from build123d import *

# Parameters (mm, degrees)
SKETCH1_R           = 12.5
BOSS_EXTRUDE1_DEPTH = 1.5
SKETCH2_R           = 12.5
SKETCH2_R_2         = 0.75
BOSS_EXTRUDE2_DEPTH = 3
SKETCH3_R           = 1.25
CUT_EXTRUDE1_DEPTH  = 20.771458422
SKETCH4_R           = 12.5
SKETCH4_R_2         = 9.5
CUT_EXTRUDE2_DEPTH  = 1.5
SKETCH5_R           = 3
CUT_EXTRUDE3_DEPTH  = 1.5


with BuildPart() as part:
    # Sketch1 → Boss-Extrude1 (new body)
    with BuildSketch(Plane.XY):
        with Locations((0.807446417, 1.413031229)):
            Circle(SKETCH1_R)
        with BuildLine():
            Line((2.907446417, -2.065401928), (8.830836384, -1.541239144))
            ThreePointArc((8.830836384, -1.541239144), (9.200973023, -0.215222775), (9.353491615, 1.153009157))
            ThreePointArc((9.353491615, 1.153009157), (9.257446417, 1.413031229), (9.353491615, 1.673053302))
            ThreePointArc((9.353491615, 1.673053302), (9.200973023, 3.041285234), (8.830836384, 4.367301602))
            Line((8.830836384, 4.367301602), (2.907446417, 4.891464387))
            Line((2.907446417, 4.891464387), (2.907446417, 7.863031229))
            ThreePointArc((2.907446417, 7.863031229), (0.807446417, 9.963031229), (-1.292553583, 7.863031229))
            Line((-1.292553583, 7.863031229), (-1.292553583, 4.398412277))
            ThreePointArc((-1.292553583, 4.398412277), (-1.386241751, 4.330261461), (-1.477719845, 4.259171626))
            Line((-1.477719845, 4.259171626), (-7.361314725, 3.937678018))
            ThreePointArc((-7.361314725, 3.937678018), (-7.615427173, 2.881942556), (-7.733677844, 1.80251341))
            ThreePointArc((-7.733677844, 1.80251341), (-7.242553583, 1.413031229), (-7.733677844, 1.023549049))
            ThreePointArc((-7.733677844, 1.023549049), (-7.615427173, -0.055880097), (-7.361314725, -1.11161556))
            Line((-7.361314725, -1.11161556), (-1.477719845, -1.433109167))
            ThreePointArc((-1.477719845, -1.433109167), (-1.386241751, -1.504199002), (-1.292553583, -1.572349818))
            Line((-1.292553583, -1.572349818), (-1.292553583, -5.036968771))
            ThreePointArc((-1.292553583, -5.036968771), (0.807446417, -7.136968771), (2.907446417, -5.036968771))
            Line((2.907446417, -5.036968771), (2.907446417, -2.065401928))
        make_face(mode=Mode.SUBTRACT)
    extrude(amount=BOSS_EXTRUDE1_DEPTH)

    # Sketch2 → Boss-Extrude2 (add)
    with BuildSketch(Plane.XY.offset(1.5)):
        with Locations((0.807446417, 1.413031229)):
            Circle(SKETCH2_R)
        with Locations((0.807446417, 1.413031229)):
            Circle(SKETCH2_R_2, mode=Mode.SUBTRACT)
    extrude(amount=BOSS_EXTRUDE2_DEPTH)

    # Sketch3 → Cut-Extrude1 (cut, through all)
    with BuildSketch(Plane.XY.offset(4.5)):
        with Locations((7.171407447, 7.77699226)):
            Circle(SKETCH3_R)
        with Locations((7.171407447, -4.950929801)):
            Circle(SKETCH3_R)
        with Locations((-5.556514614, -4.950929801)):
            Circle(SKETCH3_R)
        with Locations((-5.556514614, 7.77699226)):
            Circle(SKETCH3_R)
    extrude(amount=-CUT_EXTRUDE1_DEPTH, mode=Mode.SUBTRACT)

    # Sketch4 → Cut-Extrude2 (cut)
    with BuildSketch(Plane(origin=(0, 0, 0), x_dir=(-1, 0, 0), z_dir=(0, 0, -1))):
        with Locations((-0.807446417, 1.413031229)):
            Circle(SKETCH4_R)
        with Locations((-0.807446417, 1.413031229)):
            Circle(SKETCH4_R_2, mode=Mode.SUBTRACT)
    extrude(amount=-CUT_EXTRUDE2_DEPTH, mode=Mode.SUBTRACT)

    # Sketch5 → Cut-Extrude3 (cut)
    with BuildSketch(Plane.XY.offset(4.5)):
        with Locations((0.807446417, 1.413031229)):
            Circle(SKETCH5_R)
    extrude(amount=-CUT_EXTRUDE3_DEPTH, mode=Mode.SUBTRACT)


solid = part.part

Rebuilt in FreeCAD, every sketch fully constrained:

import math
import FreeCAD as App
import Part
import Sketcher

V = App.Vector
Q = App.Units.Quantity

doc = App.newDocument("Part")
params = doc.addObject("Spreadsheet::Sheet", "Params")
for row, (alias, value) in enumerate([
    ("sketch1_diameter", "25 mm"),
    ("sketch1_radius", "2.1 mm"),
    ("sketch1_radius2", "0.4 mm"),
    ("sketch1_radius3", "3.65 mm"),
    ("sketch1_radius4", "8.55 mm"),
    ("pad1_length", "1.5 mm"),
    ("sketch2_diameter", "25 mm"),
    ("sketch2_diameter2", "1.5 mm"),
    ("pad2_length", "3 mm"),
    ("sketch3_diameter", "2.5 mm"),
    ("sketch4_diameter", "25 mm"),
    ("sketch4_diameter2", "19 mm"),
    ("pocket2_length", "1.5 mm"),
    ("sketch5_diameter", "6 mm"),
    ("pocket3_length", "1.5 mm"),
], start=1):
    params.set(f"A{row}", alias)
    params.set(f"B{row}", "=" + value)
    params.setAlias(f"B{row}", alias)

body = doc.addObject("PartDesign::Body", "Body")

# Sketch on XY plane
sketch1 = body.newObject("Sketcher::SketchObject", "Sketch")
sketch1.AttachmentSupport = (doc.getObject("XY_Plane"), [""])
sketch1.MapMode = "FlatFace"
sketch1.addGeometry([
    Part.Circle(V(0.807446, 1.413031, 0), V(0, 0, 1), 12.5),  # 0
    Part.LineSegment(V(8.830836, -1.541239, 0), V(2.907446, -2.065402, 0)),  # 1
    Part.LineSegment(V(2.907446, -2.065402, 0), V(2.907446, -5.036969, 0)),  # 2
    Part.ArcOfCircle(Part.Circle(V(0.807446, -5.036969, 0), V(0, 0, 1), 2.1), math.radians(180), math.radians(360)),  # 3
    Part.LineSegment(V(-1.292554, -5.036969, 0), V(-1.292554, -1.57235, 0)),  # 4
    Part.ArcOfCircle(Part.Circle(V(0.807446, 1.413031, 0), V(0, 0, 1), 3.65), math.radians(-128.760983), math.radians(-125.123618)),  # 5
    Part.LineSegment(V(-1.47772, -1.433109, 0), V(-7.361315, -1.111616, 0)),  # 6
    Part.ArcOfCircle(Part.Circle(V(0.807446, 1.413031, 0), V(0, 0, 1), 8.55), math.radians(-177.389075), math.radians(-162.825652)),  # 7
    Part.ArcOfCircle(Part.Circle(V(-7.642554, 1.413031, 0), V(0, 0, 1), 0.4), math.radians(-103.16821), math.radians(103.16821)),  # 8
    Part.ArcOfCircle(Part.Circle(V(0.807446, 1.413031, 0), V(0, 0, 1), 8.55), math.radians(162.825652), math.radians(177.389075)),  # 9
    Part.LineSegment(V(-7.361315, 3.937678, 0), V(-1.47772, 4.259172, 0)),  # 10
    Part.ArcOfCircle(Part.Circle(V(0.807446, 1.413032, 0), V(0, 0, 1), 3.65), math.radians(125.123618), math.radians(128.760983)),  # 11
    Part.LineSegment(V(-1.292554, 4.398412, 0), V(-1.292554, 7.863031, 0)),  # 12
    Part.ArcOfCircle(Part.Circle(V(0.807446, 7.863031, 0), V(0, 0, 1), 2.1), math.radians(0), math.radians(180)),  # 13
    Part.LineSegment(V(2.907446, 7.863031, 0), V(2.907446, 4.891464, 0)),  # 14
    Part.LineSegment(V(2.907446, 4.891464, 0), V(8.830836, 4.367302, 0)),  # 15
    Part.ArcOfCircle(Part.Circle(V(0.807446, 1.413031, 0), V(0, 0, 1), 8.55), math.radians(1.742744), math.radians(20.214073)),  # 16
    Part.ArcOfCircle(Part.Circle(V(9.657446, 1.413031, 0), V(0, 0, 1), 0.4), math.radians(139.454238), math.radians(220.545763)),  # 17
    Part.ArcOfCircle(Part.Circle(V(0.807446, 1.413031, 0), V(0, 0, 1), 8.55), math.radians(-20.214073), math.radians(-1.742744)),  # 18
], False)
sketch1.addConstraint([
    Sketcher.Constraint("Coincident", 1, 2, 2, 1),
    Sketcher.Constraint("Tangent", 2, 2, 3, 2),
    Sketcher.Constraint("Tangent", 3, 1, 4, 1),
    Sketcher.Constraint("Coincident", 4, 2, 5, 2),
    Sketcher.Constraint("Coincident", 5, 1, 6, 1),
    Sketcher.Constraint("Coincident", 6, 2, 7, 2),
    Sketcher.Constraint("Coincident", 7, 1, 8, 1),
    Sketcher.Constraint("Coincident", 8, 2, 9, 2),
    Sketcher.Constraint("Coincident", 9, 1, 10, 1),
    Sketcher.Constraint("Coincident", 10, 2, 11, 2),
    Sketcher.Constraint("Coincident", 11, 1, 12, 1),
    Sketcher.Constraint("Tangent", 12, 2, 13, 2),
    Sketcher.Constraint("Tangent", 13, 1, 14, 1),
    Sketcher.Constraint("Coincident", 14, 2, 15, 1),
    Sketcher.Constraint("Coincident", 15, 2, 16, 2),
    Sketcher.Constraint("Coincident", 16, 1, 17, 1),
    Sketcher.Constraint("Coincident", 17, 2, 18, 2),
    Sketcher.Constraint("Coincident", 18, 1, 1, 1),
    Sketcher.Constraint("Vertical", 2),
    Sketcher.Constraint("Vertical", 4),
    Sketcher.Constraint("Vertical", 12),
    Sketcher.Constraint("Vertical", 14),
    Sketcher.Constraint("Coincident", 5, 3, 0, 3),
    Sketcher.Constraint("Coincident", 7, 3, 0, 3),
    Sketcher.Constraint("Coincident", 9, 3, 0, 3),
    Sketcher.Constraint("Coincident", 11, 3, 0, 3),
    Sketcher.Constraint("Coincident", 16, 3, 0, 3),
    Sketcher.Constraint("Coincident", 18, 3, 0, 3),
    Sketcher.Constraint("Equal", 7, 9),
    Sketcher.Constraint("Equal", 5, 11),
    Sketcher.Constraint("Equal", 3, 13),
    Sketcher.Constraint("Equal", 9, 16),
    Sketcher.Constraint("Equal", 8, 17),
    Sketcher.Constraint("Equal", 16, 18),
    Sketcher.Constraint("Horizontal", 7, 3, 8, 3),
    Sketcher.Constraint("Horizontal", 16, 3, 17, 3),
    Sketcher.Constraint("Vertical", 0, 3, 3, 3),
    Sketcher.Constraint("Vertical", 11, 3, 13, 3),
    Sketcher.Constraint("Vertical", 6, 2, 9, 1),
    Sketcher.Constraint("Vertical", 5, 1, 10, 2),
    Sketcher.Constraint("Vertical", 15, 2, 18, 1),
    Sketcher.Constraint("Equal", 4, 12),
    Sketcher.Constraint("Equal", 2, 14),
    Sketcher.Constraint("Diameter", 0, Q("25 mm")),
    Sketcher.Constraint("Radius", 3, Q("2.1 mm")),
    Sketcher.Constraint("Radius", 8, Q("0.4 mm")),
    Sketcher.Constraint("Radius", 5, Q("3.65 mm")),
    Sketcher.Constraint("Radius", 7, Q("8.55 mm")),
    Sketcher.Constraint("DistanceY", 3, 3, 0, 3, Q("6.45 mm")),
    Sketcher.Constraint("DistanceX", 8, 3, 5, 3, Q("8.45 mm")),
    Sketcher.Constraint("DistanceX", 7, 3, 17, 3, Q("8.85 mm")),
    Sketcher.Constraint("DistanceY", 1, 2, -1, 1, Q("2.065402 mm")),
    Sketcher.Constraint("DistanceY", -1, 1, 15, 2, Q("4.367302 mm")),
    Sketcher.Constraint("Distance", 6, Q("5.892372 mm")),
    Sketcher.Constraint("DistanceY", 2, 2, 2, 1, Q("2.971567 mm")),
    Sketcher.Constraint("DistanceX", 5, 1, -1, 1, Q("1.47772 mm")),
    Sketcher.Constraint("DistanceY", 5, 1, -1, 1, Q("1.433109 mm")),
])
sketch1.setExpression("Constraints[43]", "Params.sketch1_diameter")
sketch1.setExpression("Constraints[44]", "Params.sketch1_radius")
sketch1.setExpression("Constraints[45]", "Params.sketch1_radius2")
sketch1.setExpression("Constraints[46]", "Params.sketch1_radius3")
sketch1.setExpression("Constraints[47]", "Params.sketch1_radius4")
pad1 = body.newObject("PartDesign::Pad", "Pad")
pad1.Profile = sketch1
pad1.setExpression("Length", "Params.pad1_length")

# Sketch on XY plane
sketch2 = body.newObject("Sketcher::SketchObject", "Sketch001")
sketch2.AttachmentSupport = (doc.getObject("XY_Plane"), [""])
sketch2.MapMode = "FlatFace"
sketch2.AttachmentOffset = App.Placement(V(0, 0, 1.5), App.Rotation())
sketch2.addGeometry([
    Part.Circle(V(0.807446, 1.413031, 0), V(0, 0, 1), 12.5),
    Part.Circle(V(0.807446, 1.413031, 0), V(0, 0, 1), 0.75),
], False)
sketch2.addConstraint([
    Sketcher.Constraint("Coincident", 1, 3, 0, 3),
    Sketcher.Constraint("Diameter", 0, Q("25 mm")),
    Sketcher.Constraint("Diameter", 1, Q("1.5 mm")),
    Sketcher.Constraint("DistanceY", -1, 1, 0, 3, Q("1.413031 mm")),
    Sketcher.Constraint("DistanceX", -1, 1, 0, 3, Q("0.807446 mm")),
])
sketch2.setExpression("Constraints[1]", "Params.sketch2_diameter")
sketch2.setExpression("Constraints[2]", "Params.sketch2_diameter2")
pad2 = body.newObject("PartDesign::Pad", "Pad001")
pad2.Profile = sketch2
pad2.setExpression("Length", "Params.pad2_length")

# Sketch on XY plane
sketch3 = body.newObject("Sketcher::SketchObject", "Sketch002")
sketch3.AttachmentSupport = (doc.getObject("XY_Plane"), [""])
sketch3.MapMode = "FlatFace"
sketch3.AttachmentOffset = App.Placement(V(0, 0, 4.5), App.Rotation())
sketch3.addGeometry([
    Part.Circle(V(7.171407, 7.776992, 0), V(0, 0, 1), 1.25),
    Part.Circle(V(7.171407, -4.95093, 0), V(0, 0, 1), 1.25),
    Part.Circle(V(-5.556515, -4.95093, 0), V(0, 0, 1), 1.25),
    Part.Circle(V(-5.556515, 7.776992, 0), V(0, 0, 1), 1.25),
], False)
sketch3.addConstraint([
    Sketcher.Constraint("Equal", 0, 1),
    Sketcher.Constraint("Equal", 1, 2),
    Sketcher.Constraint("Equal", 2, 3),
    Sketcher.Constraint("Horizontal", 1, 3, 2, 3),
    Sketcher.Constraint("Horizontal", 0, 3, 3, 3),
    Sketcher.Constraint("Vertical", 0, 3, 1, 3),
    Sketcher.Constraint("Vertical", 2, 3, 3, 3),
    Sketcher.Constraint("Diameter", 0, Q("2.5 mm")),
    Sketcher.Constraint("DistanceY", 1, 3, -1, 1, Q("4.95093 mm")),
    Sketcher.Constraint("DistanceX", -1, 1, 0, 3, Q("7.171407 mm")),
    Sketcher.Constraint("DistanceY", -1, 1, 0, 3, Q("7.776992 mm")),
    Sketcher.Constraint("DistanceX", 2, 3, -1, 1, Q("5.556515 mm")),
])
sketch3.setExpression("Constraints[7]", "Params.sketch3_diameter")
pocket1 = body.newObject("PartDesign::Pocket", "Pocket")
pocket1.Profile = sketch3
pocket1.Type = "ThroughAll"

# Sketch on XY plane
sketch4 = body.newObject("Sketcher::SketchObject", "Sketch003")
sketch4.AttachmentSupport = (doc.getObject("XY_Plane"), [""])
sketch4.MapMode = "FlatFace"
sketch4.addGeometry([
    Part.Circle(V(0.807446, 1.413031, 0), V(0, 0, 1), 12.5),
    Part.Circle(V(0.807446, 1.413031, 0), V(0, 0, 1), 9.5),
], False)
sketch4.addConstraint([
    Sketcher.Constraint("Coincident", 1, 3, 0, 3),
    Sketcher.Constraint("Diameter", 0, Q("25 mm")),
    Sketcher.Constraint("Diameter", 1, Q("19 mm")),
    Sketcher.Constraint("DistanceY", -1, 1, 0, 3, Q("1.413031 mm")),
    Sketcher.Constraint("DistanceX", -1, 1, 0, 3, Q("0.807446 mm")),
])
sketch4.setExpression("Constraints[1]", "Params.sketch4_diameter")
sketch4.setExpression("Constraints[2]", "Params.sketch4_diameter2")
pocket2 = body.newObject("PartDesign::Pocket", "Pocket001")
pocket2.Profile = sketch4
pocket2.setExpression("Length", "Params.pocket2_length")
pocket2.Reversed = True

# Sketch on XY plane
sketch5 = body.newObject("Sketcher::SketchObject", "Sketch004")
sketch5.AttachmentSupport = (doc.getObject("XY_Plane"), [""])
sketch5.MapMode = "FlatFace"
sketch5.AttachmentOffset = App.Placement(V(0, 0, 4.5), App.Rotation())
sketch5.addGeometry(Part.Circle(V(0.807446, 1.413031, 0), V(0, 0, 1), 3), False)
sketch5.addConstraint([
    Sketcher.Constraint("Diameter", 0, Q("6 mm")),
    Sketcher.Constraint("DistanceY", -1, 1, 0, 3, Q("1.413031 mm")),
    Sketcher.Constraint("DistanceX", -1, 1, 0, 3, Q("0.807446 mm")),
])
sketch5.setExpression("Constraints[0]", "Params.sketch5_diameter")
pocket3 = body.newObject("PartDesign::Pocket", "Pocket002")
pocket3.Profile = sketch5
pocket3.setExpression("Length", "Params.pocket3_length")

doc.recompute()
